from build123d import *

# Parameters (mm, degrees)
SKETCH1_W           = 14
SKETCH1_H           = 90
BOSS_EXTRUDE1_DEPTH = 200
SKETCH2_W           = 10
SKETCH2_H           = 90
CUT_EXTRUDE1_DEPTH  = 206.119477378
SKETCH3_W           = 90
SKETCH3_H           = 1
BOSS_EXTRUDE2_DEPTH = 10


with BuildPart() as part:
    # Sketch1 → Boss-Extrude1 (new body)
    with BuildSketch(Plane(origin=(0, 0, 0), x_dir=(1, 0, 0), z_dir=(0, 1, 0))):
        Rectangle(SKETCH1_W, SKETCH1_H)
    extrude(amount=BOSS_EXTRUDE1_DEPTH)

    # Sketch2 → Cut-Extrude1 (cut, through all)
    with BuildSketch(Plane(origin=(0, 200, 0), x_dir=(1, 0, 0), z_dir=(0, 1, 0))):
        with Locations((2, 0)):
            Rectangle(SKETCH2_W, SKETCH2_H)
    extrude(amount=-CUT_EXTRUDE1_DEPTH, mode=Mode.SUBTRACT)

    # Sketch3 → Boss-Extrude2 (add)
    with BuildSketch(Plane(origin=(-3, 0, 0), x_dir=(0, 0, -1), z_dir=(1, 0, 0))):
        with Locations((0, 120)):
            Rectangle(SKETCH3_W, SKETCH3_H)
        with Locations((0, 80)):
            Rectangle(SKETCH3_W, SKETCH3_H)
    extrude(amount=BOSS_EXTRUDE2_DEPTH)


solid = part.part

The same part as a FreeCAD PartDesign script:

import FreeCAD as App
import Part
import Sketcher
from FreeCAD import Vector

doc = App.newDocument("Part")
body = doc.addObject("PartDesign::Body", "Body")

sketch1 = body.newObject("Sketcher::SketchObject", "Sketch")
sketch1.AttachmentSupport = (doc.getObject("XZ_Plane"), [""])
sketch1.MapMode = "FlatFace"
sketch1.addGeometry([
    Part.LineSegment(Vector(-7, -45, 0), Vector(-7, 45, 0)),
    Part.LineSegment(Vector(-7, 45, 0), Vector(7, 45, 0)),
    Part.LineSegment(Vector(7, 45, 0), Vector(7, -45, 0)),
    Part.LineSegment(Vector(7, -45, 0), Vector(-7, -45, 0)),
], False)
sketch1.addConstraint([
    Sketcher.Constraint("Coincident", 0, 2, 1, 1),
    Sketcher.Constraint("Coincident", 1, 2, 2, 1),
    Sketcher.Constraint("Coincident", 2, 2, 3, 1),
    Sketcher.Constraint("Coincident", 3, 2, 0, 1),
    Sketcher.Constraint("Vertical", 0),
    Sketcher.Constraint("Horizontal", 1),
    Sketcher.Constraint("Vertical", 2),
    Sketcher.Constraint("Horizontal", 3),
    Sketcher.Constraint("Symmetric", 0, 2, 2, 2, -1, 1),
    Sketcher.Constraint("DistanceX", 1, 1, 1, 2, 14.0),
    Sketcher.Constraint("DistanceY", 0, 1, 0, 2, 90.0),
])
pad1 = body.newObject("PartDesign::Pad", "Pad")
pad1.Profile = sketch1
pad1.Length = 200
pad1.Reversed = True

sketch2 = body.newObject("Sketcher::SketchObject", "Sketch001")
sketch2.AttachmentSupport = (doc.getObject("XZ_Plane"), [""])
sketch2.MapMode = "FlatFace"
sketch2.AttachmentOffset = App.Placement(Vector(0, 0, -200), App.Rotation())
sketch2.addGeometry([
    Part.LineSegment(Vector(-3, -45, 0), Vector(-3, 45, 0)),
    Part.LineSegment(Vector(-3, 45, 0), Vector(7, 45, 0)),
    Part.LineSegment(Vector(7, 45, 0), Vector(7, -45, 0)),
    Part.LineSegment(Vector(7, -45, 0), Vector(-3, -45, 0)),
], False)
sketch2.addConstraint([
    Sketcher.Constraint("Coincident", 0, 2, 1, 1),
    Sketcher.Constraint("Coincident", 1, 2, 2, 1),
    Sketcher.Constraint("Coincident", 2, 2, 3, 1),
    Sketcher.Constraint("Coincident", 3, 2, 0, 1),
    Sketcher.Constraint("Vertical", 0),
    Sketcher.Constraint("Horizontal", 1),
    Sketcher.Constraint("Vertical", 2),
    Sketcher.Constraint("Horizontal", 3),
    Sketcher.Constraint("DistanceX", 1, 1, 1, 2, 10.0),
    Sketcher.Constraint("DistanceY", 0, 1, 0, 2, 90.0),
    Sketcher.Constraint("DistanceX", 0, 2, -1, 1, 3.0),
    Sketcher.Constraint("DistanceY", -1, 1, 0, 2, 45.0),
])
pocket1 = body.newObject("PartDesign::Pocket", "Pocket")
pocket1.Profile = sketch2
pocket1.Type = "ThroughAll"
pocket1.Reversed = True

sketch3 = body.newObject("Sketcher::SketchObject", "Sketch002")
sketch3.AttachmentSupport = (doc.getObject("YZ_Plane"), [""])
sketch3.MapMode = "FlatFace"
sketch3.AttachmentOffset = App.Placement(Vector(0, 0, -3), App.Rotation())
sketch3.addGeometry([
    Part.LineSegment(Vector(120.5, 45, 0), Vector(119.5, 45, 0)),
    Part.LineSegment(Vector(119.5, 45, 0), Vector(119.5, -45, 0)),
    Part.LineSegment(Vector(119.5, -45, 0), Vector(120.5, -45, 0)),
    Part.LineSegment(Vector(120.5, -45, 0), Vector(120.5, 45, 0)),
    Part.LineSegment(Vector(80.5, 45, 0), Vector(79.5, 45, 0)),
    Part.LineSegment(Vector(79.5, 45, 0), Vector(79.5, -45, 0)),
    Part.LineSegment(Vector(79.5, -45, 0), Vector(80.5, -45, 0)),
    Part.LineSegment(Vector(80.5, -45, 0), Vector(80.5, 45, 0)),
], False)
sketch3.addConstraint([
    Sketcher.Constraint("Coincident", 0, 2, 1, 1),
    Sketcher.Constraint("Coincident", 1, 2, 2, 1),
    Sketcher.Constraint("Coincident", 2, 2, 3, 1),
    Sketcher.Constraint("Coincident", 3, 2, 0, 1),
    Sketcher.Constraint("Coincident", 4, 2, 5, 1),
    Sketcher.Constraint("Coincident", 5, 2, 6, 1),
    Sketcher.Constraint("Coincident", 6, 2, 7, 1),
    Sketcher.Constraint("Coincident", 7, 2, 4, 1),
    Sketcher.Constraint("Horizontal", 0),
    Sketcher.Constraint("Vertical", 1),
    Sketcher.Constraint("Horizontal", 2),
    Sketcher.Constraint("Vertical", 3),
    Sketcher.Constraint("Horizontal", 4),
    Sketcher.Constraint("Vertical", 5),
    Sketcher.Constraint("Horizontal", 6),
    Sketcher.Constraint("Vertical", 7),
    Sketcher.Constraint("Horizontal", 3, 2, 4, 2),
    Sketcher.Constraint("Horizontal", 2, 2, 5, 2),
    Sketcher.Constraint("Equal", 2, 4),
    Sketcher.Constraint("DistanceX", 0, 2, 0, 1, 1.0),
    Sketcher.Constraint("DistanceY", 1, 2, 1, 1, 90.0),
    Sketcher.Constraint("DistanceY", -1, 1, 0, 2, 45.0),
    Sketcher.Constraint("DistanceX", 4, 2, 0, 2, 40.0),
    Sketcher.Constraint("DistanceX", -1, 1, 0, 2, 119.5),
])
pad2 = body.newObject("PartDesign::Pad", "Pad001")
pad2.Profile = sketch3
pad2.Length = 10

doc.recompute()
